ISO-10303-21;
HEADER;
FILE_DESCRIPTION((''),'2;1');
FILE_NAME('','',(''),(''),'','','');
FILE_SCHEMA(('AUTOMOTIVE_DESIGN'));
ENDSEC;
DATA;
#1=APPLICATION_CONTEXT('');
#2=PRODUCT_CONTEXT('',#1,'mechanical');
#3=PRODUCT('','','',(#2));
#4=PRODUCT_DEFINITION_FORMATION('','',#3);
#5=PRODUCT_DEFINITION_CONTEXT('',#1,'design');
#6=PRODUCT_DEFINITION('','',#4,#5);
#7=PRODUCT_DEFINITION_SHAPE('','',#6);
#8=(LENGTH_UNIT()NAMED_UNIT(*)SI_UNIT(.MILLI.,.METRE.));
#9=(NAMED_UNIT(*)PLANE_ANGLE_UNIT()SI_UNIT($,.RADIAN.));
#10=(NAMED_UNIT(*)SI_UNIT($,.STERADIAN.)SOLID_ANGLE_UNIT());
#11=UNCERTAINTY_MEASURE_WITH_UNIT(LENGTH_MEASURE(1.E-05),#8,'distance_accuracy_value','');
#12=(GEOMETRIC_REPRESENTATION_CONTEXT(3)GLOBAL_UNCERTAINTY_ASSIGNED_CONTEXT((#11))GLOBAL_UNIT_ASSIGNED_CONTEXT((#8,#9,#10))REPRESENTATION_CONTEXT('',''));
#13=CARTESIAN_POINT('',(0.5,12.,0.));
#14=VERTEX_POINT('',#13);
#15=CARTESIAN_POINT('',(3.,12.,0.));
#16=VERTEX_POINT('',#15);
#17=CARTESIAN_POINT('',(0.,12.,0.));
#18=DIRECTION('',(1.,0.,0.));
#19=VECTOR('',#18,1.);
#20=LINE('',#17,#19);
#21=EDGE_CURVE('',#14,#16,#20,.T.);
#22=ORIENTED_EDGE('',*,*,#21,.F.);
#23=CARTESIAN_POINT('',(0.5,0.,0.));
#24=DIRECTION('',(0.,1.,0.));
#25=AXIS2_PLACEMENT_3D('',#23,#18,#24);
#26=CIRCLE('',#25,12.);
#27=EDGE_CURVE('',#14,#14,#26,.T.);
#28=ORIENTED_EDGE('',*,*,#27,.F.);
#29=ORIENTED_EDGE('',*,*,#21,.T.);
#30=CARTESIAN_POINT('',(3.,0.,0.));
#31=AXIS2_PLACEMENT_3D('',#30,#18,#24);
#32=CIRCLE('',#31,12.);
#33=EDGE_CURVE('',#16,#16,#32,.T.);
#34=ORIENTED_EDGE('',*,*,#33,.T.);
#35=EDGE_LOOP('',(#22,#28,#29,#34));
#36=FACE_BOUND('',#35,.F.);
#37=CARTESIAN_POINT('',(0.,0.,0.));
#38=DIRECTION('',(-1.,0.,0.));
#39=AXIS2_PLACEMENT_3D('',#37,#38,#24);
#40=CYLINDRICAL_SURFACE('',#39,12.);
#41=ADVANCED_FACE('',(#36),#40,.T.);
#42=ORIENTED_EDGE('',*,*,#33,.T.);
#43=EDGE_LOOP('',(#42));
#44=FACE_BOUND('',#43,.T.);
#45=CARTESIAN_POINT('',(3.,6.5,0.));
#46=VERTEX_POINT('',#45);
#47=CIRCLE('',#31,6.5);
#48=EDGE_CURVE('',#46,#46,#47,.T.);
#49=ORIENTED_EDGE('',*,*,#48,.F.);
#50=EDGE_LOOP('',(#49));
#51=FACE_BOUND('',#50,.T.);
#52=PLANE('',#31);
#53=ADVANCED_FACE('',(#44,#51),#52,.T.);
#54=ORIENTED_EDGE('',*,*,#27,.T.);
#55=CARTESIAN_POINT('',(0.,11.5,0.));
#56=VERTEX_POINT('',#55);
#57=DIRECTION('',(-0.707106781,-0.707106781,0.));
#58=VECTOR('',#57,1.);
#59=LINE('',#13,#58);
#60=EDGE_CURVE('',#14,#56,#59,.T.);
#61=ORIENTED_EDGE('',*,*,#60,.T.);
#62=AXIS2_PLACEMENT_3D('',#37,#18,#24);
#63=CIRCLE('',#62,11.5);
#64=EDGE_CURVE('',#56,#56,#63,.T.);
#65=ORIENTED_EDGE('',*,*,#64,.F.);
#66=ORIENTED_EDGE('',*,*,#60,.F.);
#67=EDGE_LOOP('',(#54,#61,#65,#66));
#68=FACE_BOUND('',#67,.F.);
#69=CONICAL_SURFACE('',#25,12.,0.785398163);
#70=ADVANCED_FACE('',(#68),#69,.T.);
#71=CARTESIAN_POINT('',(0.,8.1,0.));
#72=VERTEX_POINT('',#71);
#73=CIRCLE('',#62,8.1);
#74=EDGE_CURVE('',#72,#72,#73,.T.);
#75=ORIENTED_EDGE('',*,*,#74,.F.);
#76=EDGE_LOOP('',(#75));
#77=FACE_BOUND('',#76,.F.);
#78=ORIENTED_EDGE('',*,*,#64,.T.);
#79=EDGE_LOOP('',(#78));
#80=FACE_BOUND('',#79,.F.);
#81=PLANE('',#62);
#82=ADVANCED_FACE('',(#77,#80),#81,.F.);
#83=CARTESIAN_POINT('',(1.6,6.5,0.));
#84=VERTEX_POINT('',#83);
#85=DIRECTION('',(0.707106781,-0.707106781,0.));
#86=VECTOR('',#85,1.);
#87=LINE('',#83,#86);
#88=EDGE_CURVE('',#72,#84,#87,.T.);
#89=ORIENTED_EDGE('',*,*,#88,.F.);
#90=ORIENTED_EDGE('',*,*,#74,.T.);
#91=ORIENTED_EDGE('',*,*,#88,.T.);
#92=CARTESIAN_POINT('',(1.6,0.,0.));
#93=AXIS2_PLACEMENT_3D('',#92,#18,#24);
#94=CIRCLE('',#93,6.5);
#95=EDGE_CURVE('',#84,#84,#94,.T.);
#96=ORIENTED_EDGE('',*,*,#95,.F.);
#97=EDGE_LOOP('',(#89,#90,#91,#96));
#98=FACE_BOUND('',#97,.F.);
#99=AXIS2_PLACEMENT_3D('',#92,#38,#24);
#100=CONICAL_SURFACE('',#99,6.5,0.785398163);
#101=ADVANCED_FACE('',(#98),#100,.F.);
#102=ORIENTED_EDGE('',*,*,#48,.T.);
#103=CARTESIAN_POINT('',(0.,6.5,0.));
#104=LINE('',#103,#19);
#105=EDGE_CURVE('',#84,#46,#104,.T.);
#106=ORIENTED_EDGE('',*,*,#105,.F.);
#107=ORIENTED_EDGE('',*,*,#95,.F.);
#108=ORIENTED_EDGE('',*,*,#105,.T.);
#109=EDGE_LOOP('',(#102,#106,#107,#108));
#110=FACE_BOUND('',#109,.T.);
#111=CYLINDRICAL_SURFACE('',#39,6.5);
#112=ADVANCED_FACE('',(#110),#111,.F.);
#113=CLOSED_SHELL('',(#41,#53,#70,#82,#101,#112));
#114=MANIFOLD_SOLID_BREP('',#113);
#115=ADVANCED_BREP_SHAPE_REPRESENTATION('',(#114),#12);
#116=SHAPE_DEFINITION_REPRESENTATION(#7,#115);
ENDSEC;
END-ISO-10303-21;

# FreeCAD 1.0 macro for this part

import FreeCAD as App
import Part
import Sketcher
Q = App.Units.Quantity


def edges_at(feature, points):
    """Names of the edges that pass closest to the given points."""
    edges = feature.Shape.Edges
    near = lambda p: min(range(len(edges)), key=lambda i: edges[i].distToShape(Part.Vertex(*p))[0])
    return sorted({f"Edge{near(p) + 1}" for p in points})

doc = App.newDocument("Part")
body = doc.addObject("PartDesign::Body", "Body")

sketch1 = doc.addObject("Sketcher::SketchObject", "Sketch")
body.addObject(sketch1)
sketch1.AttachmentSupport = (doc.YZ_Plane, [""])
sketch1.MapMode = "FlatFace"
sketch1.addGeometry(Part.Circle(App.Vector(0, 0, 0), App.Vector(0, 0, 1), 12), False)
sketch1.addGeometry(Part.Circle(App.Vector(0, 0, 0), App.Vector(0, 0, 1), 6), False)
sketch1.addConstraint(Sketcher.Constraint("Coincident", 0, 3, -1, 1))
sketch1.addConstraint(Sketcher.Constraint("Coincident", 1, 3, -1, 1))
sketch1.addConstraint(Sketcher.Constraint("Diameter", 0, Q("24 mm")))
sketch1.addConstraint(Sketcher.Constraint("Diameter", 1, Q("13 mm")))
pad1 = doc.addObject("PartDesign::Pad", "Pad")
body.addObject(pad1)
pad1.Profile = sketch1
pad1.Length = 3
doc.recompute()

chamfer = doc.addObject("PartDesign::Chamfer", "Chamfer")
body.addObject(chamfer)
chamfer.Base = (pad1, edges_at(pad1, [(0, -12, 0)]))
chamfer.Size = 0.5
doc.recompute()

chamfer2 = doc.addObject("PartDesign::Chamfer", "Chamfer001")
body.addObject(chamfer2)
chamfer2.Base = (chamfer, edges_at(chamfer, [(0, -6.5, 0)]))
chamfer2.Size = 1.6

doc.recompute()
